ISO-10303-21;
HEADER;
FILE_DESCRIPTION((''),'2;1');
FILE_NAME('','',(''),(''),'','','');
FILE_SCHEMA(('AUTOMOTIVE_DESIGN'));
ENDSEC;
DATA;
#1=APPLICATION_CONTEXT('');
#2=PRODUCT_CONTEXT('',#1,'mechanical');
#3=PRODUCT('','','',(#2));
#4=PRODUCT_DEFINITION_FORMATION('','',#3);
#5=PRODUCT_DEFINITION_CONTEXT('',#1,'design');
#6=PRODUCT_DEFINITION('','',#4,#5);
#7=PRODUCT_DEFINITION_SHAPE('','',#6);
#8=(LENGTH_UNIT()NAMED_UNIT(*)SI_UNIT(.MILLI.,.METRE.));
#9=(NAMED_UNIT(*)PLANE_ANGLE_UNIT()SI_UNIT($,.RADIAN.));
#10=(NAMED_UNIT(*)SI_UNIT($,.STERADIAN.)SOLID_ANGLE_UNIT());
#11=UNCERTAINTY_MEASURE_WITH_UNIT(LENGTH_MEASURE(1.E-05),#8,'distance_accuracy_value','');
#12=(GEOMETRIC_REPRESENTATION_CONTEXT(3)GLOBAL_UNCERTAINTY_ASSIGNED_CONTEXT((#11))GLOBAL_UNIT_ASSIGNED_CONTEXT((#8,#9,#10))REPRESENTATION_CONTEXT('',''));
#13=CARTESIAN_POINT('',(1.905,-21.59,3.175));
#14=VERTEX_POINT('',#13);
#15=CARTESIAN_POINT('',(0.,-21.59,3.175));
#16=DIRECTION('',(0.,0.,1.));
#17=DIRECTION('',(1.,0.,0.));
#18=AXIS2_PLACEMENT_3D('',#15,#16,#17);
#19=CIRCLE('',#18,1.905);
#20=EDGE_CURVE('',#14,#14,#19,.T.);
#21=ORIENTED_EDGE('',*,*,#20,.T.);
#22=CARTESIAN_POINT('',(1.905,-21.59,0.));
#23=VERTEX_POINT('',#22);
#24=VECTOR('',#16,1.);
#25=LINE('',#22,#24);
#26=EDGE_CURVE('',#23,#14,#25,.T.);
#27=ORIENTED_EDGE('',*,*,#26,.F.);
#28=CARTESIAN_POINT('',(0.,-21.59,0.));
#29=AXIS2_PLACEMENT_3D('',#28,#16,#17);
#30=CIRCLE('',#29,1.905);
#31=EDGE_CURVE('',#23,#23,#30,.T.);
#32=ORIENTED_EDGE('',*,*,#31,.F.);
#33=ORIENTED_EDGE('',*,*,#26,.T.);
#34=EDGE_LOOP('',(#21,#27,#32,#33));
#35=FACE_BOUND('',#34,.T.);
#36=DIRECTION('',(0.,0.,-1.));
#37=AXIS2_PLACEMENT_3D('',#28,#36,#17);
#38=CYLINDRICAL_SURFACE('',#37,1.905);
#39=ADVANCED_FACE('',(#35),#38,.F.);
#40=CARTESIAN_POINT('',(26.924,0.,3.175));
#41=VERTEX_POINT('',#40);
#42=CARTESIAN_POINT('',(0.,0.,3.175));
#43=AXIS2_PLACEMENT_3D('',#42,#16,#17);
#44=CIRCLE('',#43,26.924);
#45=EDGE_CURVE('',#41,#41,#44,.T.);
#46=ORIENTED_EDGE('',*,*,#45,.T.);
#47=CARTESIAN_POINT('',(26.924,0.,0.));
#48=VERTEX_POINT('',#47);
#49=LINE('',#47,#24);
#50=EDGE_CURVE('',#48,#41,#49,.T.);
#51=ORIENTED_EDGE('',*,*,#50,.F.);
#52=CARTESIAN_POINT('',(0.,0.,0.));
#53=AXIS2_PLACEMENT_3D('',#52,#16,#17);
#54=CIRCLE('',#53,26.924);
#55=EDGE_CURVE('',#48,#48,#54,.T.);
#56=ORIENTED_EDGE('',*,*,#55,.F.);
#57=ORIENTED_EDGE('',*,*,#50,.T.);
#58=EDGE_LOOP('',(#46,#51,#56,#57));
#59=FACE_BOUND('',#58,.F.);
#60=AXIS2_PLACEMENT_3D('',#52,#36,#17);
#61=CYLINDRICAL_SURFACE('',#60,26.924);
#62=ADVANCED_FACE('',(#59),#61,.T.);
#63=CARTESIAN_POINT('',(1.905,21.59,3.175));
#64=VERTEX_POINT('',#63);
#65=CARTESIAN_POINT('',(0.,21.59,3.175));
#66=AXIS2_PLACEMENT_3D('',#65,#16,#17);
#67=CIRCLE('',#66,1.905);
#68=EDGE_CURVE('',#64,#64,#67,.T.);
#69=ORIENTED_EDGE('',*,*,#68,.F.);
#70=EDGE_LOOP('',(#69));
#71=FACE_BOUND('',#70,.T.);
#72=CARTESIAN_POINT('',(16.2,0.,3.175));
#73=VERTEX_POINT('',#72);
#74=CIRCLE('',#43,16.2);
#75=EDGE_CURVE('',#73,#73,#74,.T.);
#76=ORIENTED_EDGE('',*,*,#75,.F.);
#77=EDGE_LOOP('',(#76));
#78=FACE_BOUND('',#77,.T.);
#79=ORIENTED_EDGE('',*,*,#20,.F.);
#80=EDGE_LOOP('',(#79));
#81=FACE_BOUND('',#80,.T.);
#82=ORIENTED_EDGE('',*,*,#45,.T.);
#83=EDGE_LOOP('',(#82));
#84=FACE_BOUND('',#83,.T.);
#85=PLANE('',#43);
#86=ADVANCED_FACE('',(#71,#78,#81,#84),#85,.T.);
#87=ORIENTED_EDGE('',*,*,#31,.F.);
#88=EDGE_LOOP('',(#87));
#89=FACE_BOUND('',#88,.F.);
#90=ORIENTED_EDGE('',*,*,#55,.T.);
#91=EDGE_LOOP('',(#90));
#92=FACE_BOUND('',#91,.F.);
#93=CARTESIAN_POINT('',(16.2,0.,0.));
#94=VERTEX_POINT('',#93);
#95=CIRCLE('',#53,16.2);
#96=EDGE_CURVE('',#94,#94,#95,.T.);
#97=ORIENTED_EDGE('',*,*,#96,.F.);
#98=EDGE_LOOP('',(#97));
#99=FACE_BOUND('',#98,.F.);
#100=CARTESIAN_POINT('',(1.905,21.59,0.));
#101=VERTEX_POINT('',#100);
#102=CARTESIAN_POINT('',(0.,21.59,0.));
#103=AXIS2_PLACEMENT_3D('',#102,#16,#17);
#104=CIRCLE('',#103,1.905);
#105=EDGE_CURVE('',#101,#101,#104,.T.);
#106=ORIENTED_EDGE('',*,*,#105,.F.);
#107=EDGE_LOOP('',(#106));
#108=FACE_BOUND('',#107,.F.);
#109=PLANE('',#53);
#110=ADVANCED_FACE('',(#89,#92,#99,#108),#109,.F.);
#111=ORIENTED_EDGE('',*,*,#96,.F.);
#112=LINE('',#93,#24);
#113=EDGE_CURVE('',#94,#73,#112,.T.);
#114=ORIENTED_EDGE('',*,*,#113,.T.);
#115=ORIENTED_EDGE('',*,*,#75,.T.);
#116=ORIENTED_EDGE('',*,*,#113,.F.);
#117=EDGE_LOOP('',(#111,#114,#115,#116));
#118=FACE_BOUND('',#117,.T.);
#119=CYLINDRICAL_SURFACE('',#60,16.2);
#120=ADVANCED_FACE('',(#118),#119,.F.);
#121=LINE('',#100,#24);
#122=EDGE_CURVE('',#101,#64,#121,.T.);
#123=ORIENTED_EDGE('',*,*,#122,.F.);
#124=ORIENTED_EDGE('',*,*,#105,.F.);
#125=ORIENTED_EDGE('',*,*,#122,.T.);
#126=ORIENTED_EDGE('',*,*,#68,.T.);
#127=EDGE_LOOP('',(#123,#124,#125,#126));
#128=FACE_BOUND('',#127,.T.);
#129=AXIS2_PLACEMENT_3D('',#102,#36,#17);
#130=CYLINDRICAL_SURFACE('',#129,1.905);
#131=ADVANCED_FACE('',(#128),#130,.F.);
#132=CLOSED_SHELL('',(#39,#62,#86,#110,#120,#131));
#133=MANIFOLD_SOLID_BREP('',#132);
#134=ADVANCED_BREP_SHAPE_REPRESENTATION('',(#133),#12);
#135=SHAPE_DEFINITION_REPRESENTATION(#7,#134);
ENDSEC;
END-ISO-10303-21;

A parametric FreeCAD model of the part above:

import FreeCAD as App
import Part
import Sketcher
Q = App.Units.Quantity

doc = App.newDocument("Part")
body = doc.addObject("PartDesign::Body", "Body")

sketch1 = body.newObject("Sketcher::SketchObject", "Sketch")
sketch1.AttachmentSupport = (doc.getObject("XY_Plane"), [""])
sketch1.MapMode = "FlatFace"
sketch1.addGeometry(Part.Circle(App.Vector(0, 0, 0), App.Vector(0, 0, 1), 26.9), False)
sketch1.addGeometry(Part.Circle(App.Vector(0, -21.6, 0), App.Vector(0, 0, 1), 1.9), False)
sketch1.addGeometry(Part.Circle(App.Vector(0, 0, 0), App.Vector(0, 0, 1), 16.2), False)
sketch1.addGeometry(Part.Circle(App.Vector(0, 21.6, 0), App.Vector(0, 0, 1), 1.9), False)
sketch1.addConstraint(Sketcher.Constraint("Coincident", 0, 3, -1, 1))
sketch1.addConstraint(Sketcher.Constraint("Coincident", 2, 3, -1, 1))
sketch1.addConstraint(Sketcher.Constraint("Equal", 1, 3))
sketch1.addConstraint(Sketcher.Constraint("Symmetric", 1, 3, 3, 3, -1, 1))
sketch1.addConstraint(Sketcher.Constraint("PointOnObject", 1, 3, -2))
sketch1.addConstraint(Sketcher.Constraint("Diameter", 0, Q("2.12 in")))
sketch1.addConstraint(Sketcher.Constraint("Diameter", 1, Q("0.15 in")))
sketch1.addConstraint(Sketcher.Constraint("DistanceY", 1, 3, 3, 3, Q("1.7 in")))
sketch1.addConstraint(Sketcher.Constraint("Diameter", 2, 32.4))
pad1 = body.newObject("PartDesign::Pad", "Pad")
pad1.Profile = sketch1
pad1.Length = Q("0.125 in")

doc.recompute()
